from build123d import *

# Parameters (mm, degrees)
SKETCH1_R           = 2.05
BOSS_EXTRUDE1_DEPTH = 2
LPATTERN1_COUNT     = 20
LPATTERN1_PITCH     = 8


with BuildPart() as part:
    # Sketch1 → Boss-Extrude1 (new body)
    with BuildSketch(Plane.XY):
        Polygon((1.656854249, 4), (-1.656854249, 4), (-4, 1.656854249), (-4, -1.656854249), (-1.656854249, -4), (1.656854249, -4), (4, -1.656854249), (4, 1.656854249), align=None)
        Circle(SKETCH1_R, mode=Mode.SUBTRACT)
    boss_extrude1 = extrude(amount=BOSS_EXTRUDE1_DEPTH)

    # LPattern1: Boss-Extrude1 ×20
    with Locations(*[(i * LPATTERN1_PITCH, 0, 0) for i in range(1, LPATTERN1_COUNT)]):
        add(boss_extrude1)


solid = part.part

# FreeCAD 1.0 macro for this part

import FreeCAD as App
import Part
import Sketcher

doc = App.newDocument("Part")
body = doc.addObject("PartDesign::Body", "Body")

sketch1 = body.newObject("Sketcher::SketchObject", "Sketch")
sketch1.AttachmentSupport = (doc.getObject("XY_Plane"), [""])
sketch1.MapMode = "FlatFace"
sketch1.addGeometry(Part.LineSegment(App.Vector(1.7, 4, 0), App.Vector(-1.7, 4, 0)), False)
sketch1.addGeometry(Part.LineSegment(App.Vector(-1.7, 4, 0), App.Vector(-4, 1.7, 0)), False)
sketch1.addGeometry(Part.LineSegment(App.Vector(-4, 1.7, 0), App.Vector(-4, -1.7, 0)), False)
sketch1.addGeometry(Part.LineSegment(App.Vector(-4, -1.7, 0), App.Vector(-1.7, -4, 0)), False)
sketch1.addGeometry(Part.LineSegment(App.Vector(-1.7, -4, 0), App.Vector(1.7, -4, 0)), False)
sketch1.addGeometry(Part.LineSegment(App.Vector(1.7, -4, 0), App.Vector(4, -1.7, 0)), False)
sketch1.addGeometry(Part.LineSegment(App.Vector(4, -1.7, 0), App.Vector(4, 1.7, 0)), False)
sketch1.addGeometry(Part.LineSegment(App.Vector(4, 1.7, 0), App.Vector(1.7, 4, 0)), False)
sketch1.addGeometry(Part.Circle(App.Vector(0, 0, 0), App.Vector(0, 0, 1), 2), False)
sketch1.addConstraint(Sketcher.Constraint("Coincident", 0, 2, 1, 1))
sketch1.addConstraint(Sketcher.Constraint("Coincident", 1, 2, 2, 1))
sketch1.addConstraint(Sketcher.Constraint("Coincident", 2, 2, 3, 1))
sketch1.addConstraint(Sketcher.Constraint("Coincident", 3, 2, 4, 1))
sketch1.addConstraint(Sketcher.Constraint("Coincident", 4, 2, 5, 1))
sketch1.addConstraint(Sketcher.Constraint("Coincident", 5, 2, 6, 1))
sketch1.addConstraint(Sketcher.Constraint("Coincident", 6, 2, 7, 1))
sketch1.addConstraint(Sketcher.Constraint("Coincident", 7, 2, 0, 1))
sketch1.addConstraint(Sketcher.Constraint("Horizontal", 0))
sketch1.addConstraint(Sketcher.Constraint("Vertical", 2))
sketch1.addConstraint(Sketcher.Constraint("Horizontal", 4))
sketch1.addConstraint(Sketcher.Constraint("Vertical", 6))
sketch1.addConstraint(Sketcher.Constraint("Coincident", 8, 3, -1, 1))
sketch1.addConstraint(Sketcher.Constraint("Symmetric", 0, 2, 4, 2, -1, 1))
sketch1.addConstraint(Sketcher.Constraint("Symmetric", 1, 2, 5, 2, -1, 1))
sketch1.addConstraint(Sketcher.Constraint("Perpendicular", 1, 3))
sketch1.addConstraint(Sketcher.Constraint("Perpendicular", 5, 7))
sketch1.addConstraint(Sketcher.Constraint("Horizontal", 2, 2, 5, 2))
sketch1.addConstraint(Sketcher.Constraint("Horizontal", 1, 2, 6, 2))
sketch1.addConstraint(Sketcher.Constraint("Vertical", 0, 2, 3, 2))
sketch1.addConstraint(Sketcher.Constraint("Equal", 4, 2))
sketch1.addConstraint(Sketcher.Constraint("Diameter", 8, 4.1))
sketch1.addConstraint(Sketcher.Constraint("DistanceY", -1, 1, 0, 2, 4.0))
sketch1.addConstraint(Sketcher.Constraint("DistanceX", 0, 2, 0, 1, 3.313708))
pad1 = body.newObject("PartDesign::Pad", "Pad")
pad1.Profile = sketch1
pad1.Length = 2
doc.recompute()

linearpattern = body.newObject("PartDesign::LinearPattern", "LinearPattern")
linearpattern.Originals = [pad1]
linearpattern.Direction = (doc.getObject("X_Axis"), [""])
linearpattern.Mode = "offset"
linearpattern.Offset = 8
linearpattern.Occurrences = 20
body.Tip = linearpattern

doc.recompute()
